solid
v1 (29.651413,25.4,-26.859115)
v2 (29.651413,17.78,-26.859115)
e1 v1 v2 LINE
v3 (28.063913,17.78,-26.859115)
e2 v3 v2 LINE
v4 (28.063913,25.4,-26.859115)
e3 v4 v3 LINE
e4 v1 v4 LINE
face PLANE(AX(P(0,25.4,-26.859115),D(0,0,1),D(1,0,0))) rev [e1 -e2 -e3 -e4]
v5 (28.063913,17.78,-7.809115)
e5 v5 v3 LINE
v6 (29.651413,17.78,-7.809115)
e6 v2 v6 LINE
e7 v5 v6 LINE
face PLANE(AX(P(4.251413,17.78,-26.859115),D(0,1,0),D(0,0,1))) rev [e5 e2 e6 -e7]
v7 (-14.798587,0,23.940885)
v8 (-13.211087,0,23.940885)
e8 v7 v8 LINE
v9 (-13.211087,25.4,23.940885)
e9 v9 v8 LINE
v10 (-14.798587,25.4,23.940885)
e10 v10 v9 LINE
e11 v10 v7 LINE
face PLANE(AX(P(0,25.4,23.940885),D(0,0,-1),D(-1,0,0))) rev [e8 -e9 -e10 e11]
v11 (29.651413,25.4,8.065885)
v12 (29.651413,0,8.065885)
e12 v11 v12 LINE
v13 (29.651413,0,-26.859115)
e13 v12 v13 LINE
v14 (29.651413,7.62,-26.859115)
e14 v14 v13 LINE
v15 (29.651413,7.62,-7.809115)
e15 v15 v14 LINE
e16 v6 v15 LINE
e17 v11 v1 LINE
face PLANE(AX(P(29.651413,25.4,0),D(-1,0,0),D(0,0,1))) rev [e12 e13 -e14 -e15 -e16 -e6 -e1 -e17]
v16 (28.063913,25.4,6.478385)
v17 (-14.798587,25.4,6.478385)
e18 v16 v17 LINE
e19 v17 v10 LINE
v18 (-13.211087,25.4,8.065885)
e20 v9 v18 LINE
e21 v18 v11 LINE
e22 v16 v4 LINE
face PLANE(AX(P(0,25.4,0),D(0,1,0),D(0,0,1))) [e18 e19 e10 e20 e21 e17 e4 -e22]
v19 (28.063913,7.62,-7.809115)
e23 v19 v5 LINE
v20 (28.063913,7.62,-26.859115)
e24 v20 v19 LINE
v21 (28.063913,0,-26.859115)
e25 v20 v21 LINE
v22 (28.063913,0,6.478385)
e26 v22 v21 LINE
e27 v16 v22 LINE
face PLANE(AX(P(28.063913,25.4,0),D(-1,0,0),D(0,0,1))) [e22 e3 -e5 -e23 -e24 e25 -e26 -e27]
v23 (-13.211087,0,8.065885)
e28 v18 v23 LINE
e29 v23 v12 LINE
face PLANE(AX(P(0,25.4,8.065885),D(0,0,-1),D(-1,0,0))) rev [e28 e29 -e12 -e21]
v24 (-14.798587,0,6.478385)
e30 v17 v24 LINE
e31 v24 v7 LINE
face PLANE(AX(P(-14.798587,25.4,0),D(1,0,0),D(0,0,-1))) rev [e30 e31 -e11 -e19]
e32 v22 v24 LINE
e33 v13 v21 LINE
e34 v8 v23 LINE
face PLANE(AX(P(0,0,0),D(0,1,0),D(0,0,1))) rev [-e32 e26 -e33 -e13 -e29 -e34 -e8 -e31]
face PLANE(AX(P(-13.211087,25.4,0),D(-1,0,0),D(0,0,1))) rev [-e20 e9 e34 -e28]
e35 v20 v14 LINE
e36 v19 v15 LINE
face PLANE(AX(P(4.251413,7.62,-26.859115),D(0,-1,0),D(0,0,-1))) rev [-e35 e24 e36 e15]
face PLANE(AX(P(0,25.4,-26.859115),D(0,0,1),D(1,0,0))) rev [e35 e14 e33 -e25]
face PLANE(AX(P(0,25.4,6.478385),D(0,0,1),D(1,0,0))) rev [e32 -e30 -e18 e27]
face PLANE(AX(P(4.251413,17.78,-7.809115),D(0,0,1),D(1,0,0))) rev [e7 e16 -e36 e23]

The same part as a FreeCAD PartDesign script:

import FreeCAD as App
import Part
import Sketcher
from FreeCAD import Vector
Q = App.Units.Quantity


def add_polygon(sketch, points):
    """Adds a closed chain of lines whose ends are joined by coincident constraints."""
    first, n = sketch.GeometryCount, len(points)
    for a, b in zip(points, points[1:] + points[:1]):
        sketch.addGeometry(Part.LineSegment(App.Vector(*a, 0), App.Vector(*b, 0)), False)
    for i in range(n):
        sketch.addConstraint(Sketcher.Constraint("Coincident", first + i, 2, first + (i + 1) % n, 1))

doc = App.newDocument("Part")
body = doc.addObject("PartDesign::Body", "Body")

sketch1 = doc.addObject("Sketcher::SketchObject", "Sketch")
body.addObject(sketch1)
sketch1.AttachmentSupport = (doc.XZ_Plane, [""])
sketch1.MapMode = "FlatFace"
add_polygon(sketch1, [(-14.798587, 6.478385), (-14.798587, 23.940885), (-13.211087, 23.940885), (-13.211087, 8.065885), (29.651413, 8.065885), (29.651413, -26.859115), (28.063913, -26.859115), (28.063913, 6.478385)])
sketch1.addConstraint([
    Sketcher.Constraint("Vertical", 0),
    Sketcher.Constraint("Horizontal", 1),
    Sketcher.Constraint("Vertical", 2),
    Sketcher.Constraint("Horizontal", 3),
    Sketcher.Constraint("Vertical", 4),
    Sketcher.Constraint("Horizontal", 5),
    Sketcher.Constraint("Vertical", 6),
    Sketcher.Constraint("Horizontal", 7),
    Sketcher.Constraint("Equal", 1, 5),
    Sketcher.Constraint("DistanceY", 4, 2, 1, 2, Q("2 in")),
    Sketcher.Constraint("DistanceX", 1, 1, 1, 2, Q("0.0625 in")),
    Sketcher.Constraint("DistanceX", 3, 1, 3, 2, Q("1.6875 in")),
    Sketcher.Constraint("DistanceY", 0, 1, 0, 2, Q("0.6875 in")),
    Sketcher.Constraint("DistanceY", 2, 2, 2, 1, Q("0.625 in")),
    Sketcher.Constraint("DistanceX", 0, 2, -1, 1, 14.798587),
    Sketcher.Constraint("DistanceY", -1, 1, 0, 2, 23.940885),
])
pad1 = doc.addObject("PartDesign::Pad", "Pad")
body.addObject(pad1)
pad1.Profile = sketch1
pad1.Length = Q("1 in")
pad1.Reversed = True

sketch2 = doc.addObject("Sketcher::SketchObject", "Sketch001")
body.addObject(sketch2)
sketch2.AttachmentSupport = (doc.YZ_Plane, [""])
sketch2.MapMode = "FlatFace"
sketch2.AttachmentOffset = App.Placement(Vector(0, 0, 29.651413), App.Rotation())
add_polygon(sketch2, [(17.78, -7.809115), (7.62, -7.809115), (7.62, -26.859115), (17.78, -26.859115)])
sketch2.addConstraint([
    Sketcher.Constraint("Horizontal", 0),
    Sketcher.Constraint("Vertical", 1),
    Sketcher.Constraint("Horizontal", 2),
    Sketcher.Constraint("Vertical", 3),
    Sketcher.Constraint("DistanceX", 0, 2, 0, 1, Q("0.4 in")),
    Sketcher.Constraint("DistanceY", 1, 2, 1, 1, Q("0.75 in")),
    Sketcher.Constraint("DistanceX", -1, 1, 0, 2, Q("0.3 in")),
    Sketcher.Constraint("DistanceY", 0, 2, -1, 1, 7.809115),
])
pocket1 = doc.addObject("PartDesign::Pocket", "Pocket")
body.addObject(pocket1)
pocket1.Profile = sketch2
pocket1.Length = Q("1 in")

doc.recompute()
